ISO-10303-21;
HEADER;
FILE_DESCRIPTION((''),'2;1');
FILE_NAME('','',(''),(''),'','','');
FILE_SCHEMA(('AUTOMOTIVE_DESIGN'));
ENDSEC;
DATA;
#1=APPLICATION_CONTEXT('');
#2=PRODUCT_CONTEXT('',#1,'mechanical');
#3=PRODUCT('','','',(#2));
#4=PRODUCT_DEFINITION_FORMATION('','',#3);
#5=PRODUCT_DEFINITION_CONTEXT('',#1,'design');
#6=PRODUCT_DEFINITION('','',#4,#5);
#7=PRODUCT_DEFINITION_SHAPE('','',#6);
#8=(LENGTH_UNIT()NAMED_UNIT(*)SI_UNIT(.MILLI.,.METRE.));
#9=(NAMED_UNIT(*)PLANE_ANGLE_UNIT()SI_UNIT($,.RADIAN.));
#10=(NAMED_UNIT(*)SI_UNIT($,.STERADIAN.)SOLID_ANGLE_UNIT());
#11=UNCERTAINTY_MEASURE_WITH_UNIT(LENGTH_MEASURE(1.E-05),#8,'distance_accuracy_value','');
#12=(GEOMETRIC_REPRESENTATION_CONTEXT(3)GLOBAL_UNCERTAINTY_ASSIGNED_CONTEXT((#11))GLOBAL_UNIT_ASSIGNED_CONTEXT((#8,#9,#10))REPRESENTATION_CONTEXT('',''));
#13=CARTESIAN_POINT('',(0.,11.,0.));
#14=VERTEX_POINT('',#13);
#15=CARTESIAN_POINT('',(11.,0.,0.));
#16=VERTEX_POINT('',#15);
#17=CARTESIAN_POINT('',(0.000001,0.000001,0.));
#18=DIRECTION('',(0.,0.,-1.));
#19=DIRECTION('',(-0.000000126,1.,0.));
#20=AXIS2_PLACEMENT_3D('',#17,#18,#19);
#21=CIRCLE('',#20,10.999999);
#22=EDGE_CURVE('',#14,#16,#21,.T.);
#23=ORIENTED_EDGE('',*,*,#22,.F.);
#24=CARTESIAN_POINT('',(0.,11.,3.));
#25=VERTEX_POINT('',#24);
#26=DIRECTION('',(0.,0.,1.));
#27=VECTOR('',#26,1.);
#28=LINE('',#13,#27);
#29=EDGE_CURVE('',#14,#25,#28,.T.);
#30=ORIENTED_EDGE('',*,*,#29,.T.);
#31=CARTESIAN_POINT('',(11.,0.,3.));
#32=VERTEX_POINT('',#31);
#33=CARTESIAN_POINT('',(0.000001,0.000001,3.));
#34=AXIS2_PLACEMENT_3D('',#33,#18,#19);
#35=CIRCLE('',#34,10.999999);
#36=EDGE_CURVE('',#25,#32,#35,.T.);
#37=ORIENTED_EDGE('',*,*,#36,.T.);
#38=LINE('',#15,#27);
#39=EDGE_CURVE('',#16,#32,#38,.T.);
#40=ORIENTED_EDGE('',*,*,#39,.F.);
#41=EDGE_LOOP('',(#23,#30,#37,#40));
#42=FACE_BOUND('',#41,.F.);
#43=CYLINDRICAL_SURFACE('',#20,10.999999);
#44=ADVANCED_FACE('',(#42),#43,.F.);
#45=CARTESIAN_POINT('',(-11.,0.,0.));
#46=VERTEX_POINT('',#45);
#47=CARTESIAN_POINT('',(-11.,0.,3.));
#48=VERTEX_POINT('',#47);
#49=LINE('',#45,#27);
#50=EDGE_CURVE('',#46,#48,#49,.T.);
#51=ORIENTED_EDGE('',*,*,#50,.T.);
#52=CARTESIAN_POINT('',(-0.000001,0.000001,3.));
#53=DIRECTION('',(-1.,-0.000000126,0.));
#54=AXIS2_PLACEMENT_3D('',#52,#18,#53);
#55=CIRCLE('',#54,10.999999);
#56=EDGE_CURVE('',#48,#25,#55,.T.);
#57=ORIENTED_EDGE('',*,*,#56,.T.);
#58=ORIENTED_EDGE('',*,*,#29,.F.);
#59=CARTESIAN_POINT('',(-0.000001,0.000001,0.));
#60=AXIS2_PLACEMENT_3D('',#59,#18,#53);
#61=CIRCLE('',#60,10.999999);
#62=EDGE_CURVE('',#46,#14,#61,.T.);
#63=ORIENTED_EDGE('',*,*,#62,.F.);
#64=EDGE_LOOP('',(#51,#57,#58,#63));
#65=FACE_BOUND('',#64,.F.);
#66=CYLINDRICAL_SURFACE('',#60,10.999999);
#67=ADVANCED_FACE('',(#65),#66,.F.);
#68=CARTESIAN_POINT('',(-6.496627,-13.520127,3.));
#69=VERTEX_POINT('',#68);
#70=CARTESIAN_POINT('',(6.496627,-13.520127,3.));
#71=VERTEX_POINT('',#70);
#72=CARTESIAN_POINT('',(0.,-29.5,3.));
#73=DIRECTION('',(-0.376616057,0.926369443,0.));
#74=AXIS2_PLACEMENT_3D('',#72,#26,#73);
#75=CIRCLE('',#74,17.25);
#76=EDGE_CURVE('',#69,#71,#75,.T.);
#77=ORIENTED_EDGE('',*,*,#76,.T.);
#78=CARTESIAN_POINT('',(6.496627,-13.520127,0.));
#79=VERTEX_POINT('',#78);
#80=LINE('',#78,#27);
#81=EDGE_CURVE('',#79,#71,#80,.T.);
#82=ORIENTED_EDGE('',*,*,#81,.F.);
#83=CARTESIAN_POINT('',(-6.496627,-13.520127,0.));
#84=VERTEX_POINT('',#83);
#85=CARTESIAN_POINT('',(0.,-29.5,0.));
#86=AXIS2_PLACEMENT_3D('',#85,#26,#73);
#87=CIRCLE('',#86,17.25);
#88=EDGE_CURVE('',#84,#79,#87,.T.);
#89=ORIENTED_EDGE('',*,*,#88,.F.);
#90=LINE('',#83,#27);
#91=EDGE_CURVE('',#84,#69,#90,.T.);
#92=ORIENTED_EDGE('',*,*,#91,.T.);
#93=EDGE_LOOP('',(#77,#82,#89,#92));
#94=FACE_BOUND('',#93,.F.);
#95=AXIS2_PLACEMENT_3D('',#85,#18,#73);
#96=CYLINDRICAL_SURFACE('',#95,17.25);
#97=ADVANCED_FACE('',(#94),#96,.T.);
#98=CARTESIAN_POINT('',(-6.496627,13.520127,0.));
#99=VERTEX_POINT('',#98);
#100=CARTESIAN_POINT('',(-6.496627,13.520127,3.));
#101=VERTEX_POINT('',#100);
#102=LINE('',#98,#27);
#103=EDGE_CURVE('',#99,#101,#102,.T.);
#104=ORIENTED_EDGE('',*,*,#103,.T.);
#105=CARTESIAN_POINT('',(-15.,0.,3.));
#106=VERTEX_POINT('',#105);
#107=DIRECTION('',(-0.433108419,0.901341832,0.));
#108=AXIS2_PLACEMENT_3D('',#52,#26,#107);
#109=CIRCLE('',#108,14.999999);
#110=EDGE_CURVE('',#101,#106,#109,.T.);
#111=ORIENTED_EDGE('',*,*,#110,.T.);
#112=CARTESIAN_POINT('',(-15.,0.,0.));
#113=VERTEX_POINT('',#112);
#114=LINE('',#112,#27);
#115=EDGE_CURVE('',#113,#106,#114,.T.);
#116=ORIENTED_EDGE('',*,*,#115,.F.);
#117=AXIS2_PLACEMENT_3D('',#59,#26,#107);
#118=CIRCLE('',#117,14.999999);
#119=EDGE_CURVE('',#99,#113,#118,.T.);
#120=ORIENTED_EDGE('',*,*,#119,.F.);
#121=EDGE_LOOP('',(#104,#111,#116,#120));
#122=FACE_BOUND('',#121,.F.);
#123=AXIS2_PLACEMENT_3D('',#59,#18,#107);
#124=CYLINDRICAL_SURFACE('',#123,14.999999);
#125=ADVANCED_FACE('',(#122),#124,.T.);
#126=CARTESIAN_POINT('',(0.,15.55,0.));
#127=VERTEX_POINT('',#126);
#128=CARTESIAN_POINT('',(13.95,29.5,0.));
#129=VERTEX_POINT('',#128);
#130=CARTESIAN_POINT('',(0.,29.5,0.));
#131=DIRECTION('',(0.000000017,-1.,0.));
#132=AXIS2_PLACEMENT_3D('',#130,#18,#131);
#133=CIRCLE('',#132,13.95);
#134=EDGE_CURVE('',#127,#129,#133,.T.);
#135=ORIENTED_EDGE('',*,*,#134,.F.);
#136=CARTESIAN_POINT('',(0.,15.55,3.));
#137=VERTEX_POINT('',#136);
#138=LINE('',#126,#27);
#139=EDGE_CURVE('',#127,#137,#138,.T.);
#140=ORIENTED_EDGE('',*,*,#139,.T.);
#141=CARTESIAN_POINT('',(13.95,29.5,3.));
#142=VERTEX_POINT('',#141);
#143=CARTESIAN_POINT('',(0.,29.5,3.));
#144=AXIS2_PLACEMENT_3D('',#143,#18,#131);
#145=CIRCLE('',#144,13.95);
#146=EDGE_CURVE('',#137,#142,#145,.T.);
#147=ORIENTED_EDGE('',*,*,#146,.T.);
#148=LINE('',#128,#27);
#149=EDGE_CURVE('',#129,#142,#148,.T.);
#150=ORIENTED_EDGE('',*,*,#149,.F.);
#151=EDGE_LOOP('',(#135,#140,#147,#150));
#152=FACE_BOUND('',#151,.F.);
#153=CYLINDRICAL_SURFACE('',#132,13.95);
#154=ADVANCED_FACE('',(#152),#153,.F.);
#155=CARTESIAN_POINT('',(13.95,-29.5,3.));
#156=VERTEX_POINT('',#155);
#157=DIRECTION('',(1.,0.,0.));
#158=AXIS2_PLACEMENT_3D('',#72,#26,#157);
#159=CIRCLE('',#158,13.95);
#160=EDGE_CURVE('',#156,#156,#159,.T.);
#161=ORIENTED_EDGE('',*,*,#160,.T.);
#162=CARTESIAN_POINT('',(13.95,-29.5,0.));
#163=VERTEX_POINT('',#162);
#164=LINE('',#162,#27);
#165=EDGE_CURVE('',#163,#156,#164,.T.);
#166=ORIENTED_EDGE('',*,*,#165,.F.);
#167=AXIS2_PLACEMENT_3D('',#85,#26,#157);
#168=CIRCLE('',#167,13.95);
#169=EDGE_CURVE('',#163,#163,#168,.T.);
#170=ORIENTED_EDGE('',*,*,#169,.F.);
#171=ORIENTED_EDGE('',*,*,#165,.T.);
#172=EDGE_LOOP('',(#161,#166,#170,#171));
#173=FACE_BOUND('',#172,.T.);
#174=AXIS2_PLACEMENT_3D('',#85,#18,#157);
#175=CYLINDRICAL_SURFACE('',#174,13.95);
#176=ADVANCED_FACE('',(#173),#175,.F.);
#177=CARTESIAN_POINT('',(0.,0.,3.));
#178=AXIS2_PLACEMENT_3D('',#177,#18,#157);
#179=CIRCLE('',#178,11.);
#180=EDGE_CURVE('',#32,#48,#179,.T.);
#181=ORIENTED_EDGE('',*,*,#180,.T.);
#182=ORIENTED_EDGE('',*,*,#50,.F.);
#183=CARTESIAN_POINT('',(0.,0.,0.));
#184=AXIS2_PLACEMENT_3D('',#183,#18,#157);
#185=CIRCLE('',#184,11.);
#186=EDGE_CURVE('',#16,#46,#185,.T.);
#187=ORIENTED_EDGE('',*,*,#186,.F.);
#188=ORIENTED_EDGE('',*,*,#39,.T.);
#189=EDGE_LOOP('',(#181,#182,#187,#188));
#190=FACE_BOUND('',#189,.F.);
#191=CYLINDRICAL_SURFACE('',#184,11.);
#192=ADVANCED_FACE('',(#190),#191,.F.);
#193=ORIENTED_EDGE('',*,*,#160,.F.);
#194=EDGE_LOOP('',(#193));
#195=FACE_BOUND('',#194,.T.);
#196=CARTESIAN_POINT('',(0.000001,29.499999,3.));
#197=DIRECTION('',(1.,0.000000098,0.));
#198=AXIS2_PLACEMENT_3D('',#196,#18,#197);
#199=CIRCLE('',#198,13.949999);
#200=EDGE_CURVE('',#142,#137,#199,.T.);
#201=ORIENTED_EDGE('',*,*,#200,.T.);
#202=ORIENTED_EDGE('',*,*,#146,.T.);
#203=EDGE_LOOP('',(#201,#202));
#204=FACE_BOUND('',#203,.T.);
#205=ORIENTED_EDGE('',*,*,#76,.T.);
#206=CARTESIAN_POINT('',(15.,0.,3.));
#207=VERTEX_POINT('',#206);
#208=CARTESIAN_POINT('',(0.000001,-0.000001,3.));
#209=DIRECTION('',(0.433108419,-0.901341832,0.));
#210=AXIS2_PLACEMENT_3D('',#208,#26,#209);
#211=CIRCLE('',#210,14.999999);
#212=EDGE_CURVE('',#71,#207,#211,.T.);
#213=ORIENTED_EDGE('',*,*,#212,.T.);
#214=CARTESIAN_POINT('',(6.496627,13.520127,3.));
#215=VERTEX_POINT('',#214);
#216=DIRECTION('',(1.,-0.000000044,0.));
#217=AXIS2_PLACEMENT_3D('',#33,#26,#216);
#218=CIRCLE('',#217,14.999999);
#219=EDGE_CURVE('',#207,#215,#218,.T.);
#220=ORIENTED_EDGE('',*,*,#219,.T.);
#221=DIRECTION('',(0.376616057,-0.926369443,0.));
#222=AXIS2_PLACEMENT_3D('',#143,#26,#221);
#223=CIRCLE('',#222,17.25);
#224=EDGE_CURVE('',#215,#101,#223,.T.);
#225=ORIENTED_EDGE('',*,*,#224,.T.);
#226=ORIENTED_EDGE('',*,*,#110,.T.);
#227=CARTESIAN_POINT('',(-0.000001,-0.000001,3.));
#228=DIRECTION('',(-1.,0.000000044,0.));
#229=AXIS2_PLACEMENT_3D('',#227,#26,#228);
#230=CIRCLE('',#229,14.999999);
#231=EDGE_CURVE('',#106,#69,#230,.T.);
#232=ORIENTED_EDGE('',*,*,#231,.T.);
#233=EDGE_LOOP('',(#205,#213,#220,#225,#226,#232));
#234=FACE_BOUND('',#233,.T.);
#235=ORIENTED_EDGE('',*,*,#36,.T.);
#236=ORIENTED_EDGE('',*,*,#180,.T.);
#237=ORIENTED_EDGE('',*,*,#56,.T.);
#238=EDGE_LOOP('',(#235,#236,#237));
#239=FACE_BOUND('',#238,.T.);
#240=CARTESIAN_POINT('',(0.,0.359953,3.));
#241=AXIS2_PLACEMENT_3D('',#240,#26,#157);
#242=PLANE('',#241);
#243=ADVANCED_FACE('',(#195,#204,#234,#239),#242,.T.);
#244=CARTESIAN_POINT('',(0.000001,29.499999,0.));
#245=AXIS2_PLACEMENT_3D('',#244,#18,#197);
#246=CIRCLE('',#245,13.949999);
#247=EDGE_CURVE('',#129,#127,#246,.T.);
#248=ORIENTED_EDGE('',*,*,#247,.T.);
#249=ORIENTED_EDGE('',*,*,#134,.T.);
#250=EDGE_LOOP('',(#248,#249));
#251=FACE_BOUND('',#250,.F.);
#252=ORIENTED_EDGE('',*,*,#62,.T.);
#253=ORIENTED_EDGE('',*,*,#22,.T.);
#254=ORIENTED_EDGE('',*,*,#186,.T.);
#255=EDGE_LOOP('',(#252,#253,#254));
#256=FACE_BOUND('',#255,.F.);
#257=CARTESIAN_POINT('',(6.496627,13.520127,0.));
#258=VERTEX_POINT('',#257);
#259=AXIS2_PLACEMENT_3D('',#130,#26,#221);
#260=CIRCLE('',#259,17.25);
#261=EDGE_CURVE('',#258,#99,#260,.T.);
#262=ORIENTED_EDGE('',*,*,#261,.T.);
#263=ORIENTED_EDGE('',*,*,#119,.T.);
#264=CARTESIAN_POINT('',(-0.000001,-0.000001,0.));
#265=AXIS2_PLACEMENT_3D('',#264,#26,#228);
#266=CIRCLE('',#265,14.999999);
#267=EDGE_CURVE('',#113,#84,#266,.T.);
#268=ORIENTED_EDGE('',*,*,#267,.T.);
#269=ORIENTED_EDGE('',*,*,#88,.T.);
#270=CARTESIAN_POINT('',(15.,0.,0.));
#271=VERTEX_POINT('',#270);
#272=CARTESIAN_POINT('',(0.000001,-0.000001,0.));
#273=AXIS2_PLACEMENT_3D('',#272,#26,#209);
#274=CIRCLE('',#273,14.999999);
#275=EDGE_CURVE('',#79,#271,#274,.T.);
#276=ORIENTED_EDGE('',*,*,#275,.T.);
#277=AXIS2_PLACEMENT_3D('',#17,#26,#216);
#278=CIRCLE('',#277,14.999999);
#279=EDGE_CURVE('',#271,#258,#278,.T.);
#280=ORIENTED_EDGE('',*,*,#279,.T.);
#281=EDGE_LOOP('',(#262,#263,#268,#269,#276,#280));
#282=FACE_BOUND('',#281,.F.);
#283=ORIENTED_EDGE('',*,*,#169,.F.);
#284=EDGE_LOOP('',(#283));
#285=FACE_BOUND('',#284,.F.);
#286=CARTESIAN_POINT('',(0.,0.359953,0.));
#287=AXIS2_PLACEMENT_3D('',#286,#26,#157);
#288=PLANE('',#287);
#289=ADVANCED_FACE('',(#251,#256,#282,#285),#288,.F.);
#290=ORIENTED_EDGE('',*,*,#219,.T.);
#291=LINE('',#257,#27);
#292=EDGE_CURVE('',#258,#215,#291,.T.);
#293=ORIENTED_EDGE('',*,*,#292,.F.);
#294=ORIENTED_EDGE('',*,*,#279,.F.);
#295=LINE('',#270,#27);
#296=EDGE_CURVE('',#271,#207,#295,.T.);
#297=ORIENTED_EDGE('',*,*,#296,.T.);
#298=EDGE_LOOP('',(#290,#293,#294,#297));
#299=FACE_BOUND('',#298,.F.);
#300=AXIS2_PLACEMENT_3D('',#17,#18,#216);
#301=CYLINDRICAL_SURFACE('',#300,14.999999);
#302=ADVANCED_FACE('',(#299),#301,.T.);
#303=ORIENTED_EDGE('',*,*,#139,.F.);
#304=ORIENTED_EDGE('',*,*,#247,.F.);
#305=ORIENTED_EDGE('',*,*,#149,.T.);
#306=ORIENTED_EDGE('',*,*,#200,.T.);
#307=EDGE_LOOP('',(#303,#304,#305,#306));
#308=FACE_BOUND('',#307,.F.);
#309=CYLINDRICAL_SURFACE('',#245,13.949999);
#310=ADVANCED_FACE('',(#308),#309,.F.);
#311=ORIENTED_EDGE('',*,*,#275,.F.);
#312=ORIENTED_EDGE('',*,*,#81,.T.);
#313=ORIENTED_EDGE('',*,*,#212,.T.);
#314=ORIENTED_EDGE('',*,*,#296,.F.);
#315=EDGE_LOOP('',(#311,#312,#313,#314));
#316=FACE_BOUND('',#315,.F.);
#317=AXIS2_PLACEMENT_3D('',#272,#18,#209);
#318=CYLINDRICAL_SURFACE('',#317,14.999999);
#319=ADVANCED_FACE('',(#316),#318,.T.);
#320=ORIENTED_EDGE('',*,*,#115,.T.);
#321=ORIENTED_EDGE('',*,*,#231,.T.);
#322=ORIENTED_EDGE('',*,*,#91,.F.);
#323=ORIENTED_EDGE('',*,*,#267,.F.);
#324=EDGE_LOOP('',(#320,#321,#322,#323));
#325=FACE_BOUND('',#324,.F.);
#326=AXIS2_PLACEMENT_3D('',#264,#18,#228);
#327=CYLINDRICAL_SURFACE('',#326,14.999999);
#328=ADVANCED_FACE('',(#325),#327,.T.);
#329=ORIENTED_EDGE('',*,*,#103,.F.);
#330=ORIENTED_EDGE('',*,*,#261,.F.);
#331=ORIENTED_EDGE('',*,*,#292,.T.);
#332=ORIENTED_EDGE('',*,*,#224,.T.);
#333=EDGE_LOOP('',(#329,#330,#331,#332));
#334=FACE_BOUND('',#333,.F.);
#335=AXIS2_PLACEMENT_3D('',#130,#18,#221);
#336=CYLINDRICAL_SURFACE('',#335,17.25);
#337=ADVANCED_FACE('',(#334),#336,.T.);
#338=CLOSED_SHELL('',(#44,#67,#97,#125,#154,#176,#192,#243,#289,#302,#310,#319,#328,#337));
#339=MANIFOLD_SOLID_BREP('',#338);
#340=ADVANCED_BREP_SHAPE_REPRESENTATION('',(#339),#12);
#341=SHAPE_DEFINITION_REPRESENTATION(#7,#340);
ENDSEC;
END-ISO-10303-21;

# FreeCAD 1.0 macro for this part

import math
import FreeCAD as App
import Part
import Sketcher
Q = App.Units.Quantity

doc = App.newDocument("Part")
params = doc.addObject("Spreadsheet::Sheet", "Params")
for row, (alias, value) in enumerate([
    ("sketch1_radius", "14.999999 mm"),
    ("sketch1_radius2", "10.999999 mm"),
    ("sketch1_diameter", "27.9 mm"),
    ("sketch1_radius3", "17.25 mm"),
    ("pad1_length", "3 mm"),
], start=1):
    params.set(f"A{row}", alias)
    params.set(f"B{row}", "=" + value)
    params.setAlias(f"B{row}", alias)

body = doc.addObject("PartDesign::Body", "Body")

# Sketch on XY plane
sketch1 = body.newObject("Sketcher::SketchObject", "Sketch")
sketch1.AttachmentSupport = (doc.getObject("XY_Plane"), [""])
sketch1.MapMode = "FlatFace"
sketch1.addGeometry([
    Part.ArcOfCircle(Part.Circle(App.Vector(0, 29.5, 0), App.Vector(0, 0, 1), 17.25), math.radians(-67.87577), math.radians(247.87577)),  # 0
    Part.ArcOfCircle(Part.Circle(App.Vector(-0.000001, 0.000001, 0), App.Vector(0, 0, 1), 14.999999), math.radians(115.664991), math.radians(180.000003)),  # 1
    Part.ArcOfCircle(Part.Circle(App.Vector(-0.000001, -0.000001, 0), App.Vector(0, 0, 1), 14.999999), math.radians(179.999997), math.radians(244.335009)),  # 2
    Part.ArcOfCircle(Part.Circle(App.Vector(0, -29.5, 0), App.Vector(0, 0, 1), 17.25), math.radians(112.12423), math.radians(427.87577)),  # 3
    Part.ArcOfCircle(Part.Circle(App.Vector(0.000001, -0.000001, 0), App.Vector(0, 0, 1), 14.999999), math.radians(-64.335009), math.radians(0.000003)),  # 4
    Part.ArcOfCircle(Part.Circle(App.Vector(0.000001, 0.000001, 0), App.Vector(0, 0, 1), 14.999999), math.radians(-0.000003), math.radians(64.335009)),  # 5
    Part.Circle(App.Vector(0, -29.5, 0), App.Vector(0, 0, 1), 13.95),  # 6
    Part.ArcOfCircle(Part.Circle(App.Vector(-0.000001, 0.000001, 0), App.Vector(0, 0, 1), 10.999999), math.radians(89.999993), math.radians(180.000007)),  # 7
    Part.ArcOfCircle(Part.Circle(App.Vector(0.000001, 0.000001, 0), App.Vector(0, 0, 1), 10.999999), math.radians(-0.000007), math.radians(90.000007)),  # 8
    Part.ArcOfCircle(Part.Circle(App.Vector(0, 0, 0), App.Vector(0, 0, 1), 11), math.radians(180), math.radians(360)),  # 9
    Part.ArcOfCircle(Part.Circle(App.Vector(0, 29.5, 0), App.Vector(0, 0, 1), 13.95), math.radians(-0.000001), math.radians(270.000001)),  # 10
    Part.ArcOfCircle(Part.Circle(App.Vector(0.000001, 29.499999, 0), App.Vector(0, 0, 1), 13.949999), math.radians(-90.000006), math.radians(0.000006)),  # 11
], False)
sketch1.addConstraint([
    Sketcher.Constraint("Coincident", 0, 2, 1, 1),
    Sketcher.Constraint("Tangent", 1, 2, 2, 1),
    Sketcher.Constraint("Coincident", 2, 2, 3, 1),
    Sketcher.Constraint("Coincident", 3, 2, 4, 1),
    Sketcher.Constraint("Tangent", 4, 2, 5, 1),
    Sketcher.Constraint("Coincident", 5, 2, 0, 1),
    Sketcher.Constraint("Tangent", 7, 1, 8, 2),
    Sketcher.Constraint("Tangent", 8, 1, 9, 2),
    Sketcher.Constraint("Tangent", 9, 1, 7, 2),
    Sketcher.Constraint("Tangent", 10, 1, 11, 2),
    Sketcher.Constraint("Coincident", 11, 1, 10, 2),
    Sketcher.Constraint("Coincident", 1, 3, -1, 1),
    Sketcher.Constraint("Coincident", 4, 3, -1, 1),
    Sketcher.Constraint("Coincident", 7, 3, -1, 1),
    Sketcher.Constraint("Coincident", 6, 3, 3, 3),
    Sketcher.Constraint("Coincident", 10, 3, 0, 3),
    Sketcher.Constraint("Equal", 1, 2),
    Sketcher.Constraint("Equal", 0, 3),
    Sketcher.Constraint("Equal", 2, 4),
    Sketcher.Constraint("Equal", 4, 5),
    Sketcher.Constraint("Equal", 6, 10),
    Sketcher.Constraint("Symmetric", 0, 3, 3, 3, -1, 1),
    Sketcher.Constraint("PointOnObject", 0, 3, -2),
    Sketcher.Constraint("PointOnObject", 1, 2, -1),
    Sketcher.Constraint("PointOnObject", 4, 2, -1),
    Sketcher.Constraint("PointOnObject", 7, 1, -2),
    Sketcher.Constraint("PointOnObject", 8, 1, -1),
    Sketcher.Constraint("PointOnObject", 9, 1, -1),
    Sketcher.Constraint("PointOnObject", 11, 1, -2),
    Sketcher.Constraint("Horizontal", 11, 3, 10, 1),
    Sketcher.Constraint("Radius", 1, Q("14.999999 mm")),
    Sketcher.Constraint("Radius", 7, Q("10.999999 mm")),
    Sketcher.Constraint("Diameter", 6, Q("27.9 mm")),
    Sketcher.Constraint("Radius", 0, Q("17.25 mm")),
    Sketcher.Constraint("DistanceY", 3, 3, 0, 3, Q("59 mm")),
])
sketch1.setExpression("Constraints[30]", "Params.sketch1_radius")
sketch1.setExpression("Constraints[31]", "Params.sketch1_radius2")
sketch1.setExpression("Constraints[32]", "Params.sketch1_diameter")
sketch1.setExpression("Constraints[33]", "Params.sketch1_radius3")
pad1 = body.newObject("PartDesign::Pad", "Pad")
pad1.Profile = sketch1
pad1.setExpression("Length", "Params.pad1_length")

doc.recompute()
